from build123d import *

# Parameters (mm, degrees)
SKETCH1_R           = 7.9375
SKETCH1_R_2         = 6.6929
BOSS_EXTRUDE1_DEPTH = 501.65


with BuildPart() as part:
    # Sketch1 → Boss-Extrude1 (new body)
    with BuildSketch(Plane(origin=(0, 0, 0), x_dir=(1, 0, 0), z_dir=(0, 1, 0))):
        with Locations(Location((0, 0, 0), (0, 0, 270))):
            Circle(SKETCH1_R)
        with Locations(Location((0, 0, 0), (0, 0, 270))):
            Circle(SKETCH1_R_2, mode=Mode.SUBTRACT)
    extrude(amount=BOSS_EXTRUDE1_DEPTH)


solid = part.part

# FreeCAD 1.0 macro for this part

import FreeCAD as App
import Part
import Sketcher

V = App.Vector
Q = App.Units.Quantity

doc = App.newDocument("Part")
body = doc.addObject("PartDesign::Body", "Body")

# Sketch on XZ plane
sketch1 = body.newObject("Sketcher::SketchObject", "Sketch")
sketch1.AttachmentSupport = (doc.getObject("XZ_Plane"), [""])
sketch1.MapMode = "FlatFace"
sketch1.addGeometry([
    Part.Circle(V(0, 0, 0), V(0, 0, 1), 8),
    Part.Circle(V(0, 0, 0), V(0, 0, 1), 7),
], False)
sketch1.addConstraint([
    Sketcher.Constraint("Coincident", 0, 3, -1, 1),
    Sketcher.Constraint("Coincident", 1, 3, -1, 1),
    Sketcher.Constraint("Diameter", 0, Q("0.625 in")),
    Sketcher.Constraint("Diameter", 1, Q("0.527 in")),
])
pad1 = body.newObject("PartDesign::Pad", "Pad")
pad1.Profile = sketch1
pad1.Length = Q("19.75 in")
pad1.Reversed = True

doc.recompute()
